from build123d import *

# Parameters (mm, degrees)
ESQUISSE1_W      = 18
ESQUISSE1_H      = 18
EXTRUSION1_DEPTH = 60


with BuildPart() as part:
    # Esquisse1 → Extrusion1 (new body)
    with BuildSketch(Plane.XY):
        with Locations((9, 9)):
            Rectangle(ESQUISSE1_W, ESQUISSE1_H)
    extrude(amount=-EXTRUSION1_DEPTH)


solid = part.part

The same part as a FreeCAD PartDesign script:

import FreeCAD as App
import Part
import Sketcher
from FreeCAD import Vector
Q = App.Units.Quantity

doc = App.newDocument("Part")
body = doc.addObject("PartDesign::Body", "Body")

# Sketch on XY plane
sketch1 = doc.addObject("Sketcher::SketchObject", "Sketch")
body.addObject(sketch1)
sketch1.AttachmentSupport = (doc.XY_Plane, [""])
sketch1.MapMode = "FlatFace"
sketch1.addGeometry([
    Part.LineSegment(Vector(0, 18, 0), Vector(0, 0, 0)),
    Part.LineSegment(Vector(0, 0, 0), Vector(18, 0, 0)),
    Part.LineSegment(Vector(18, 0, 0), Vector(18, 18, 0)),
    Part.LineSegment(Vector(18, 18, 0), Vector(0, 18, 0)),
], False)
sketch1.addConstraint([
    Sketcher.Constraint("Coincident", 0, 2, 1, 1),
    Sketcher.Constraint("Coincident", 1, 2, 2, 1),
    Sketcher.Constraint("Coincident", 2, 2, 3, 1),
    Sketcher.Constraint("Coincident", 3, 2, 0, 1),
    Sketcher.Constraint("Vertical", 0),
    Sketcher.Constraint("Horizontal", 1),
    Sketcher.Constraint("Vertical", 2),
    Sketcher.Constraint("Horizontal", 3),
    Sketcher.Constraint("Coincident", 0, 2, -1, 1),
    Sketcher.Constraint("Equal", 3, 0),
    Sketcher.Constraint("DistanceX", 1, 1, 1, 2, Q("18 mm")),
])
pad1 = doc.addObject("PartDesign::Pad", "Pad")
body.addObject(pad1)
pad1.Profile = sketch1
pad1.Length = 60
pad1.Reversed = True

doc.recompute()
